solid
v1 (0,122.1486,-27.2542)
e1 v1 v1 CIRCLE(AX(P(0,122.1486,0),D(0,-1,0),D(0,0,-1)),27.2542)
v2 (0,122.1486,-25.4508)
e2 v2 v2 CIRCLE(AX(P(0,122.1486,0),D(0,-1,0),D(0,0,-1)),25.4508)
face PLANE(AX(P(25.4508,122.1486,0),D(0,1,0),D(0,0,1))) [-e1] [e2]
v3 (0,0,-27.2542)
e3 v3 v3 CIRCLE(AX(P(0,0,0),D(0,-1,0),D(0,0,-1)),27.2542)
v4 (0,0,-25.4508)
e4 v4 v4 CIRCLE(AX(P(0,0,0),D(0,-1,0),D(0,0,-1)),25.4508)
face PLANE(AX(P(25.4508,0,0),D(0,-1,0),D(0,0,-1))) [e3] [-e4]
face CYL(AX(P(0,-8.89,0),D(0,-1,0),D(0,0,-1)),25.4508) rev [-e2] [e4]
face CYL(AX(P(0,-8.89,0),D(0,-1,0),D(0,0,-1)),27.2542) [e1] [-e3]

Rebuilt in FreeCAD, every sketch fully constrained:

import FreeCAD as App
import Part
import Sketcher
from FreeCAD import Vector
Q = App.Units.Quantity

doc = App.newDocument("Part")
body = doc.addObject("PartDesign::Body", "Body")

# Sketch on XY plane
sketch1 = body.newObject("Sketcher::SketchObject", "Sketch")
sketch1.AttachmentSupport = (doc.getObject("XY_Plane"), [""])
sketch1.MapMode = "FlatFace"
sketch1.addGeometry([
    Part.LineSegment(Vector(25.5, 122.1, 0), Vector(25.5, 0, 0)),
    Part.LineSegment(Vector(25.5, 0, 0), Vector(27.3, 0, 0)),
    Part.LineSegment(Vector(27.3, 0, 0), Vector(27.3, 122.1, 0)),
    Part.LineSegment(Vector(27.3, 122.1, 0), Vector(25.5, 122.1, 0)),
], False)
sketch1.addConstraint([
    Sketcher.Constraint("Coincident", 0, 2, 1, 1),
    Sketcher.Constraint("Coincident", 1, 2, 2, 1),
    Sketcher.Constraint("Coincident", 2, 2, 3, 1),
    Sketcher.Constraint("Coincident", 3, 2, 0, 1),
    Sketcher.Constraint("Vertical", 0),
    Sketcher.Constraint("Horizontal", 1),
    Sketcher.Constraint("Vertical", 2),
    Sketcher.Constraint("Horizontal", 3),
    Sketcher.Constraint("PointOnObject", 0, 2, -1),
    Sketcher.Constraint("DistanceX", 1, 1, 1, 2, Q("0.071 in")),
    Sketcher.Constraint("DistanceY", 0, 2, 0, 1, Q("4.809 in")),
    Sketcher.Constraint("DistanceX", -1, 1, 0, 2, Q("1.002 in")),
])
revolution = body.newObject("PartDesign::Revolution", "Revolution")
revolution.Profile = sketch1
revolution.ReferenceAxis = (sketch1, ["V_Axis"])
revolution.Angle = 360

doc.recompute()
